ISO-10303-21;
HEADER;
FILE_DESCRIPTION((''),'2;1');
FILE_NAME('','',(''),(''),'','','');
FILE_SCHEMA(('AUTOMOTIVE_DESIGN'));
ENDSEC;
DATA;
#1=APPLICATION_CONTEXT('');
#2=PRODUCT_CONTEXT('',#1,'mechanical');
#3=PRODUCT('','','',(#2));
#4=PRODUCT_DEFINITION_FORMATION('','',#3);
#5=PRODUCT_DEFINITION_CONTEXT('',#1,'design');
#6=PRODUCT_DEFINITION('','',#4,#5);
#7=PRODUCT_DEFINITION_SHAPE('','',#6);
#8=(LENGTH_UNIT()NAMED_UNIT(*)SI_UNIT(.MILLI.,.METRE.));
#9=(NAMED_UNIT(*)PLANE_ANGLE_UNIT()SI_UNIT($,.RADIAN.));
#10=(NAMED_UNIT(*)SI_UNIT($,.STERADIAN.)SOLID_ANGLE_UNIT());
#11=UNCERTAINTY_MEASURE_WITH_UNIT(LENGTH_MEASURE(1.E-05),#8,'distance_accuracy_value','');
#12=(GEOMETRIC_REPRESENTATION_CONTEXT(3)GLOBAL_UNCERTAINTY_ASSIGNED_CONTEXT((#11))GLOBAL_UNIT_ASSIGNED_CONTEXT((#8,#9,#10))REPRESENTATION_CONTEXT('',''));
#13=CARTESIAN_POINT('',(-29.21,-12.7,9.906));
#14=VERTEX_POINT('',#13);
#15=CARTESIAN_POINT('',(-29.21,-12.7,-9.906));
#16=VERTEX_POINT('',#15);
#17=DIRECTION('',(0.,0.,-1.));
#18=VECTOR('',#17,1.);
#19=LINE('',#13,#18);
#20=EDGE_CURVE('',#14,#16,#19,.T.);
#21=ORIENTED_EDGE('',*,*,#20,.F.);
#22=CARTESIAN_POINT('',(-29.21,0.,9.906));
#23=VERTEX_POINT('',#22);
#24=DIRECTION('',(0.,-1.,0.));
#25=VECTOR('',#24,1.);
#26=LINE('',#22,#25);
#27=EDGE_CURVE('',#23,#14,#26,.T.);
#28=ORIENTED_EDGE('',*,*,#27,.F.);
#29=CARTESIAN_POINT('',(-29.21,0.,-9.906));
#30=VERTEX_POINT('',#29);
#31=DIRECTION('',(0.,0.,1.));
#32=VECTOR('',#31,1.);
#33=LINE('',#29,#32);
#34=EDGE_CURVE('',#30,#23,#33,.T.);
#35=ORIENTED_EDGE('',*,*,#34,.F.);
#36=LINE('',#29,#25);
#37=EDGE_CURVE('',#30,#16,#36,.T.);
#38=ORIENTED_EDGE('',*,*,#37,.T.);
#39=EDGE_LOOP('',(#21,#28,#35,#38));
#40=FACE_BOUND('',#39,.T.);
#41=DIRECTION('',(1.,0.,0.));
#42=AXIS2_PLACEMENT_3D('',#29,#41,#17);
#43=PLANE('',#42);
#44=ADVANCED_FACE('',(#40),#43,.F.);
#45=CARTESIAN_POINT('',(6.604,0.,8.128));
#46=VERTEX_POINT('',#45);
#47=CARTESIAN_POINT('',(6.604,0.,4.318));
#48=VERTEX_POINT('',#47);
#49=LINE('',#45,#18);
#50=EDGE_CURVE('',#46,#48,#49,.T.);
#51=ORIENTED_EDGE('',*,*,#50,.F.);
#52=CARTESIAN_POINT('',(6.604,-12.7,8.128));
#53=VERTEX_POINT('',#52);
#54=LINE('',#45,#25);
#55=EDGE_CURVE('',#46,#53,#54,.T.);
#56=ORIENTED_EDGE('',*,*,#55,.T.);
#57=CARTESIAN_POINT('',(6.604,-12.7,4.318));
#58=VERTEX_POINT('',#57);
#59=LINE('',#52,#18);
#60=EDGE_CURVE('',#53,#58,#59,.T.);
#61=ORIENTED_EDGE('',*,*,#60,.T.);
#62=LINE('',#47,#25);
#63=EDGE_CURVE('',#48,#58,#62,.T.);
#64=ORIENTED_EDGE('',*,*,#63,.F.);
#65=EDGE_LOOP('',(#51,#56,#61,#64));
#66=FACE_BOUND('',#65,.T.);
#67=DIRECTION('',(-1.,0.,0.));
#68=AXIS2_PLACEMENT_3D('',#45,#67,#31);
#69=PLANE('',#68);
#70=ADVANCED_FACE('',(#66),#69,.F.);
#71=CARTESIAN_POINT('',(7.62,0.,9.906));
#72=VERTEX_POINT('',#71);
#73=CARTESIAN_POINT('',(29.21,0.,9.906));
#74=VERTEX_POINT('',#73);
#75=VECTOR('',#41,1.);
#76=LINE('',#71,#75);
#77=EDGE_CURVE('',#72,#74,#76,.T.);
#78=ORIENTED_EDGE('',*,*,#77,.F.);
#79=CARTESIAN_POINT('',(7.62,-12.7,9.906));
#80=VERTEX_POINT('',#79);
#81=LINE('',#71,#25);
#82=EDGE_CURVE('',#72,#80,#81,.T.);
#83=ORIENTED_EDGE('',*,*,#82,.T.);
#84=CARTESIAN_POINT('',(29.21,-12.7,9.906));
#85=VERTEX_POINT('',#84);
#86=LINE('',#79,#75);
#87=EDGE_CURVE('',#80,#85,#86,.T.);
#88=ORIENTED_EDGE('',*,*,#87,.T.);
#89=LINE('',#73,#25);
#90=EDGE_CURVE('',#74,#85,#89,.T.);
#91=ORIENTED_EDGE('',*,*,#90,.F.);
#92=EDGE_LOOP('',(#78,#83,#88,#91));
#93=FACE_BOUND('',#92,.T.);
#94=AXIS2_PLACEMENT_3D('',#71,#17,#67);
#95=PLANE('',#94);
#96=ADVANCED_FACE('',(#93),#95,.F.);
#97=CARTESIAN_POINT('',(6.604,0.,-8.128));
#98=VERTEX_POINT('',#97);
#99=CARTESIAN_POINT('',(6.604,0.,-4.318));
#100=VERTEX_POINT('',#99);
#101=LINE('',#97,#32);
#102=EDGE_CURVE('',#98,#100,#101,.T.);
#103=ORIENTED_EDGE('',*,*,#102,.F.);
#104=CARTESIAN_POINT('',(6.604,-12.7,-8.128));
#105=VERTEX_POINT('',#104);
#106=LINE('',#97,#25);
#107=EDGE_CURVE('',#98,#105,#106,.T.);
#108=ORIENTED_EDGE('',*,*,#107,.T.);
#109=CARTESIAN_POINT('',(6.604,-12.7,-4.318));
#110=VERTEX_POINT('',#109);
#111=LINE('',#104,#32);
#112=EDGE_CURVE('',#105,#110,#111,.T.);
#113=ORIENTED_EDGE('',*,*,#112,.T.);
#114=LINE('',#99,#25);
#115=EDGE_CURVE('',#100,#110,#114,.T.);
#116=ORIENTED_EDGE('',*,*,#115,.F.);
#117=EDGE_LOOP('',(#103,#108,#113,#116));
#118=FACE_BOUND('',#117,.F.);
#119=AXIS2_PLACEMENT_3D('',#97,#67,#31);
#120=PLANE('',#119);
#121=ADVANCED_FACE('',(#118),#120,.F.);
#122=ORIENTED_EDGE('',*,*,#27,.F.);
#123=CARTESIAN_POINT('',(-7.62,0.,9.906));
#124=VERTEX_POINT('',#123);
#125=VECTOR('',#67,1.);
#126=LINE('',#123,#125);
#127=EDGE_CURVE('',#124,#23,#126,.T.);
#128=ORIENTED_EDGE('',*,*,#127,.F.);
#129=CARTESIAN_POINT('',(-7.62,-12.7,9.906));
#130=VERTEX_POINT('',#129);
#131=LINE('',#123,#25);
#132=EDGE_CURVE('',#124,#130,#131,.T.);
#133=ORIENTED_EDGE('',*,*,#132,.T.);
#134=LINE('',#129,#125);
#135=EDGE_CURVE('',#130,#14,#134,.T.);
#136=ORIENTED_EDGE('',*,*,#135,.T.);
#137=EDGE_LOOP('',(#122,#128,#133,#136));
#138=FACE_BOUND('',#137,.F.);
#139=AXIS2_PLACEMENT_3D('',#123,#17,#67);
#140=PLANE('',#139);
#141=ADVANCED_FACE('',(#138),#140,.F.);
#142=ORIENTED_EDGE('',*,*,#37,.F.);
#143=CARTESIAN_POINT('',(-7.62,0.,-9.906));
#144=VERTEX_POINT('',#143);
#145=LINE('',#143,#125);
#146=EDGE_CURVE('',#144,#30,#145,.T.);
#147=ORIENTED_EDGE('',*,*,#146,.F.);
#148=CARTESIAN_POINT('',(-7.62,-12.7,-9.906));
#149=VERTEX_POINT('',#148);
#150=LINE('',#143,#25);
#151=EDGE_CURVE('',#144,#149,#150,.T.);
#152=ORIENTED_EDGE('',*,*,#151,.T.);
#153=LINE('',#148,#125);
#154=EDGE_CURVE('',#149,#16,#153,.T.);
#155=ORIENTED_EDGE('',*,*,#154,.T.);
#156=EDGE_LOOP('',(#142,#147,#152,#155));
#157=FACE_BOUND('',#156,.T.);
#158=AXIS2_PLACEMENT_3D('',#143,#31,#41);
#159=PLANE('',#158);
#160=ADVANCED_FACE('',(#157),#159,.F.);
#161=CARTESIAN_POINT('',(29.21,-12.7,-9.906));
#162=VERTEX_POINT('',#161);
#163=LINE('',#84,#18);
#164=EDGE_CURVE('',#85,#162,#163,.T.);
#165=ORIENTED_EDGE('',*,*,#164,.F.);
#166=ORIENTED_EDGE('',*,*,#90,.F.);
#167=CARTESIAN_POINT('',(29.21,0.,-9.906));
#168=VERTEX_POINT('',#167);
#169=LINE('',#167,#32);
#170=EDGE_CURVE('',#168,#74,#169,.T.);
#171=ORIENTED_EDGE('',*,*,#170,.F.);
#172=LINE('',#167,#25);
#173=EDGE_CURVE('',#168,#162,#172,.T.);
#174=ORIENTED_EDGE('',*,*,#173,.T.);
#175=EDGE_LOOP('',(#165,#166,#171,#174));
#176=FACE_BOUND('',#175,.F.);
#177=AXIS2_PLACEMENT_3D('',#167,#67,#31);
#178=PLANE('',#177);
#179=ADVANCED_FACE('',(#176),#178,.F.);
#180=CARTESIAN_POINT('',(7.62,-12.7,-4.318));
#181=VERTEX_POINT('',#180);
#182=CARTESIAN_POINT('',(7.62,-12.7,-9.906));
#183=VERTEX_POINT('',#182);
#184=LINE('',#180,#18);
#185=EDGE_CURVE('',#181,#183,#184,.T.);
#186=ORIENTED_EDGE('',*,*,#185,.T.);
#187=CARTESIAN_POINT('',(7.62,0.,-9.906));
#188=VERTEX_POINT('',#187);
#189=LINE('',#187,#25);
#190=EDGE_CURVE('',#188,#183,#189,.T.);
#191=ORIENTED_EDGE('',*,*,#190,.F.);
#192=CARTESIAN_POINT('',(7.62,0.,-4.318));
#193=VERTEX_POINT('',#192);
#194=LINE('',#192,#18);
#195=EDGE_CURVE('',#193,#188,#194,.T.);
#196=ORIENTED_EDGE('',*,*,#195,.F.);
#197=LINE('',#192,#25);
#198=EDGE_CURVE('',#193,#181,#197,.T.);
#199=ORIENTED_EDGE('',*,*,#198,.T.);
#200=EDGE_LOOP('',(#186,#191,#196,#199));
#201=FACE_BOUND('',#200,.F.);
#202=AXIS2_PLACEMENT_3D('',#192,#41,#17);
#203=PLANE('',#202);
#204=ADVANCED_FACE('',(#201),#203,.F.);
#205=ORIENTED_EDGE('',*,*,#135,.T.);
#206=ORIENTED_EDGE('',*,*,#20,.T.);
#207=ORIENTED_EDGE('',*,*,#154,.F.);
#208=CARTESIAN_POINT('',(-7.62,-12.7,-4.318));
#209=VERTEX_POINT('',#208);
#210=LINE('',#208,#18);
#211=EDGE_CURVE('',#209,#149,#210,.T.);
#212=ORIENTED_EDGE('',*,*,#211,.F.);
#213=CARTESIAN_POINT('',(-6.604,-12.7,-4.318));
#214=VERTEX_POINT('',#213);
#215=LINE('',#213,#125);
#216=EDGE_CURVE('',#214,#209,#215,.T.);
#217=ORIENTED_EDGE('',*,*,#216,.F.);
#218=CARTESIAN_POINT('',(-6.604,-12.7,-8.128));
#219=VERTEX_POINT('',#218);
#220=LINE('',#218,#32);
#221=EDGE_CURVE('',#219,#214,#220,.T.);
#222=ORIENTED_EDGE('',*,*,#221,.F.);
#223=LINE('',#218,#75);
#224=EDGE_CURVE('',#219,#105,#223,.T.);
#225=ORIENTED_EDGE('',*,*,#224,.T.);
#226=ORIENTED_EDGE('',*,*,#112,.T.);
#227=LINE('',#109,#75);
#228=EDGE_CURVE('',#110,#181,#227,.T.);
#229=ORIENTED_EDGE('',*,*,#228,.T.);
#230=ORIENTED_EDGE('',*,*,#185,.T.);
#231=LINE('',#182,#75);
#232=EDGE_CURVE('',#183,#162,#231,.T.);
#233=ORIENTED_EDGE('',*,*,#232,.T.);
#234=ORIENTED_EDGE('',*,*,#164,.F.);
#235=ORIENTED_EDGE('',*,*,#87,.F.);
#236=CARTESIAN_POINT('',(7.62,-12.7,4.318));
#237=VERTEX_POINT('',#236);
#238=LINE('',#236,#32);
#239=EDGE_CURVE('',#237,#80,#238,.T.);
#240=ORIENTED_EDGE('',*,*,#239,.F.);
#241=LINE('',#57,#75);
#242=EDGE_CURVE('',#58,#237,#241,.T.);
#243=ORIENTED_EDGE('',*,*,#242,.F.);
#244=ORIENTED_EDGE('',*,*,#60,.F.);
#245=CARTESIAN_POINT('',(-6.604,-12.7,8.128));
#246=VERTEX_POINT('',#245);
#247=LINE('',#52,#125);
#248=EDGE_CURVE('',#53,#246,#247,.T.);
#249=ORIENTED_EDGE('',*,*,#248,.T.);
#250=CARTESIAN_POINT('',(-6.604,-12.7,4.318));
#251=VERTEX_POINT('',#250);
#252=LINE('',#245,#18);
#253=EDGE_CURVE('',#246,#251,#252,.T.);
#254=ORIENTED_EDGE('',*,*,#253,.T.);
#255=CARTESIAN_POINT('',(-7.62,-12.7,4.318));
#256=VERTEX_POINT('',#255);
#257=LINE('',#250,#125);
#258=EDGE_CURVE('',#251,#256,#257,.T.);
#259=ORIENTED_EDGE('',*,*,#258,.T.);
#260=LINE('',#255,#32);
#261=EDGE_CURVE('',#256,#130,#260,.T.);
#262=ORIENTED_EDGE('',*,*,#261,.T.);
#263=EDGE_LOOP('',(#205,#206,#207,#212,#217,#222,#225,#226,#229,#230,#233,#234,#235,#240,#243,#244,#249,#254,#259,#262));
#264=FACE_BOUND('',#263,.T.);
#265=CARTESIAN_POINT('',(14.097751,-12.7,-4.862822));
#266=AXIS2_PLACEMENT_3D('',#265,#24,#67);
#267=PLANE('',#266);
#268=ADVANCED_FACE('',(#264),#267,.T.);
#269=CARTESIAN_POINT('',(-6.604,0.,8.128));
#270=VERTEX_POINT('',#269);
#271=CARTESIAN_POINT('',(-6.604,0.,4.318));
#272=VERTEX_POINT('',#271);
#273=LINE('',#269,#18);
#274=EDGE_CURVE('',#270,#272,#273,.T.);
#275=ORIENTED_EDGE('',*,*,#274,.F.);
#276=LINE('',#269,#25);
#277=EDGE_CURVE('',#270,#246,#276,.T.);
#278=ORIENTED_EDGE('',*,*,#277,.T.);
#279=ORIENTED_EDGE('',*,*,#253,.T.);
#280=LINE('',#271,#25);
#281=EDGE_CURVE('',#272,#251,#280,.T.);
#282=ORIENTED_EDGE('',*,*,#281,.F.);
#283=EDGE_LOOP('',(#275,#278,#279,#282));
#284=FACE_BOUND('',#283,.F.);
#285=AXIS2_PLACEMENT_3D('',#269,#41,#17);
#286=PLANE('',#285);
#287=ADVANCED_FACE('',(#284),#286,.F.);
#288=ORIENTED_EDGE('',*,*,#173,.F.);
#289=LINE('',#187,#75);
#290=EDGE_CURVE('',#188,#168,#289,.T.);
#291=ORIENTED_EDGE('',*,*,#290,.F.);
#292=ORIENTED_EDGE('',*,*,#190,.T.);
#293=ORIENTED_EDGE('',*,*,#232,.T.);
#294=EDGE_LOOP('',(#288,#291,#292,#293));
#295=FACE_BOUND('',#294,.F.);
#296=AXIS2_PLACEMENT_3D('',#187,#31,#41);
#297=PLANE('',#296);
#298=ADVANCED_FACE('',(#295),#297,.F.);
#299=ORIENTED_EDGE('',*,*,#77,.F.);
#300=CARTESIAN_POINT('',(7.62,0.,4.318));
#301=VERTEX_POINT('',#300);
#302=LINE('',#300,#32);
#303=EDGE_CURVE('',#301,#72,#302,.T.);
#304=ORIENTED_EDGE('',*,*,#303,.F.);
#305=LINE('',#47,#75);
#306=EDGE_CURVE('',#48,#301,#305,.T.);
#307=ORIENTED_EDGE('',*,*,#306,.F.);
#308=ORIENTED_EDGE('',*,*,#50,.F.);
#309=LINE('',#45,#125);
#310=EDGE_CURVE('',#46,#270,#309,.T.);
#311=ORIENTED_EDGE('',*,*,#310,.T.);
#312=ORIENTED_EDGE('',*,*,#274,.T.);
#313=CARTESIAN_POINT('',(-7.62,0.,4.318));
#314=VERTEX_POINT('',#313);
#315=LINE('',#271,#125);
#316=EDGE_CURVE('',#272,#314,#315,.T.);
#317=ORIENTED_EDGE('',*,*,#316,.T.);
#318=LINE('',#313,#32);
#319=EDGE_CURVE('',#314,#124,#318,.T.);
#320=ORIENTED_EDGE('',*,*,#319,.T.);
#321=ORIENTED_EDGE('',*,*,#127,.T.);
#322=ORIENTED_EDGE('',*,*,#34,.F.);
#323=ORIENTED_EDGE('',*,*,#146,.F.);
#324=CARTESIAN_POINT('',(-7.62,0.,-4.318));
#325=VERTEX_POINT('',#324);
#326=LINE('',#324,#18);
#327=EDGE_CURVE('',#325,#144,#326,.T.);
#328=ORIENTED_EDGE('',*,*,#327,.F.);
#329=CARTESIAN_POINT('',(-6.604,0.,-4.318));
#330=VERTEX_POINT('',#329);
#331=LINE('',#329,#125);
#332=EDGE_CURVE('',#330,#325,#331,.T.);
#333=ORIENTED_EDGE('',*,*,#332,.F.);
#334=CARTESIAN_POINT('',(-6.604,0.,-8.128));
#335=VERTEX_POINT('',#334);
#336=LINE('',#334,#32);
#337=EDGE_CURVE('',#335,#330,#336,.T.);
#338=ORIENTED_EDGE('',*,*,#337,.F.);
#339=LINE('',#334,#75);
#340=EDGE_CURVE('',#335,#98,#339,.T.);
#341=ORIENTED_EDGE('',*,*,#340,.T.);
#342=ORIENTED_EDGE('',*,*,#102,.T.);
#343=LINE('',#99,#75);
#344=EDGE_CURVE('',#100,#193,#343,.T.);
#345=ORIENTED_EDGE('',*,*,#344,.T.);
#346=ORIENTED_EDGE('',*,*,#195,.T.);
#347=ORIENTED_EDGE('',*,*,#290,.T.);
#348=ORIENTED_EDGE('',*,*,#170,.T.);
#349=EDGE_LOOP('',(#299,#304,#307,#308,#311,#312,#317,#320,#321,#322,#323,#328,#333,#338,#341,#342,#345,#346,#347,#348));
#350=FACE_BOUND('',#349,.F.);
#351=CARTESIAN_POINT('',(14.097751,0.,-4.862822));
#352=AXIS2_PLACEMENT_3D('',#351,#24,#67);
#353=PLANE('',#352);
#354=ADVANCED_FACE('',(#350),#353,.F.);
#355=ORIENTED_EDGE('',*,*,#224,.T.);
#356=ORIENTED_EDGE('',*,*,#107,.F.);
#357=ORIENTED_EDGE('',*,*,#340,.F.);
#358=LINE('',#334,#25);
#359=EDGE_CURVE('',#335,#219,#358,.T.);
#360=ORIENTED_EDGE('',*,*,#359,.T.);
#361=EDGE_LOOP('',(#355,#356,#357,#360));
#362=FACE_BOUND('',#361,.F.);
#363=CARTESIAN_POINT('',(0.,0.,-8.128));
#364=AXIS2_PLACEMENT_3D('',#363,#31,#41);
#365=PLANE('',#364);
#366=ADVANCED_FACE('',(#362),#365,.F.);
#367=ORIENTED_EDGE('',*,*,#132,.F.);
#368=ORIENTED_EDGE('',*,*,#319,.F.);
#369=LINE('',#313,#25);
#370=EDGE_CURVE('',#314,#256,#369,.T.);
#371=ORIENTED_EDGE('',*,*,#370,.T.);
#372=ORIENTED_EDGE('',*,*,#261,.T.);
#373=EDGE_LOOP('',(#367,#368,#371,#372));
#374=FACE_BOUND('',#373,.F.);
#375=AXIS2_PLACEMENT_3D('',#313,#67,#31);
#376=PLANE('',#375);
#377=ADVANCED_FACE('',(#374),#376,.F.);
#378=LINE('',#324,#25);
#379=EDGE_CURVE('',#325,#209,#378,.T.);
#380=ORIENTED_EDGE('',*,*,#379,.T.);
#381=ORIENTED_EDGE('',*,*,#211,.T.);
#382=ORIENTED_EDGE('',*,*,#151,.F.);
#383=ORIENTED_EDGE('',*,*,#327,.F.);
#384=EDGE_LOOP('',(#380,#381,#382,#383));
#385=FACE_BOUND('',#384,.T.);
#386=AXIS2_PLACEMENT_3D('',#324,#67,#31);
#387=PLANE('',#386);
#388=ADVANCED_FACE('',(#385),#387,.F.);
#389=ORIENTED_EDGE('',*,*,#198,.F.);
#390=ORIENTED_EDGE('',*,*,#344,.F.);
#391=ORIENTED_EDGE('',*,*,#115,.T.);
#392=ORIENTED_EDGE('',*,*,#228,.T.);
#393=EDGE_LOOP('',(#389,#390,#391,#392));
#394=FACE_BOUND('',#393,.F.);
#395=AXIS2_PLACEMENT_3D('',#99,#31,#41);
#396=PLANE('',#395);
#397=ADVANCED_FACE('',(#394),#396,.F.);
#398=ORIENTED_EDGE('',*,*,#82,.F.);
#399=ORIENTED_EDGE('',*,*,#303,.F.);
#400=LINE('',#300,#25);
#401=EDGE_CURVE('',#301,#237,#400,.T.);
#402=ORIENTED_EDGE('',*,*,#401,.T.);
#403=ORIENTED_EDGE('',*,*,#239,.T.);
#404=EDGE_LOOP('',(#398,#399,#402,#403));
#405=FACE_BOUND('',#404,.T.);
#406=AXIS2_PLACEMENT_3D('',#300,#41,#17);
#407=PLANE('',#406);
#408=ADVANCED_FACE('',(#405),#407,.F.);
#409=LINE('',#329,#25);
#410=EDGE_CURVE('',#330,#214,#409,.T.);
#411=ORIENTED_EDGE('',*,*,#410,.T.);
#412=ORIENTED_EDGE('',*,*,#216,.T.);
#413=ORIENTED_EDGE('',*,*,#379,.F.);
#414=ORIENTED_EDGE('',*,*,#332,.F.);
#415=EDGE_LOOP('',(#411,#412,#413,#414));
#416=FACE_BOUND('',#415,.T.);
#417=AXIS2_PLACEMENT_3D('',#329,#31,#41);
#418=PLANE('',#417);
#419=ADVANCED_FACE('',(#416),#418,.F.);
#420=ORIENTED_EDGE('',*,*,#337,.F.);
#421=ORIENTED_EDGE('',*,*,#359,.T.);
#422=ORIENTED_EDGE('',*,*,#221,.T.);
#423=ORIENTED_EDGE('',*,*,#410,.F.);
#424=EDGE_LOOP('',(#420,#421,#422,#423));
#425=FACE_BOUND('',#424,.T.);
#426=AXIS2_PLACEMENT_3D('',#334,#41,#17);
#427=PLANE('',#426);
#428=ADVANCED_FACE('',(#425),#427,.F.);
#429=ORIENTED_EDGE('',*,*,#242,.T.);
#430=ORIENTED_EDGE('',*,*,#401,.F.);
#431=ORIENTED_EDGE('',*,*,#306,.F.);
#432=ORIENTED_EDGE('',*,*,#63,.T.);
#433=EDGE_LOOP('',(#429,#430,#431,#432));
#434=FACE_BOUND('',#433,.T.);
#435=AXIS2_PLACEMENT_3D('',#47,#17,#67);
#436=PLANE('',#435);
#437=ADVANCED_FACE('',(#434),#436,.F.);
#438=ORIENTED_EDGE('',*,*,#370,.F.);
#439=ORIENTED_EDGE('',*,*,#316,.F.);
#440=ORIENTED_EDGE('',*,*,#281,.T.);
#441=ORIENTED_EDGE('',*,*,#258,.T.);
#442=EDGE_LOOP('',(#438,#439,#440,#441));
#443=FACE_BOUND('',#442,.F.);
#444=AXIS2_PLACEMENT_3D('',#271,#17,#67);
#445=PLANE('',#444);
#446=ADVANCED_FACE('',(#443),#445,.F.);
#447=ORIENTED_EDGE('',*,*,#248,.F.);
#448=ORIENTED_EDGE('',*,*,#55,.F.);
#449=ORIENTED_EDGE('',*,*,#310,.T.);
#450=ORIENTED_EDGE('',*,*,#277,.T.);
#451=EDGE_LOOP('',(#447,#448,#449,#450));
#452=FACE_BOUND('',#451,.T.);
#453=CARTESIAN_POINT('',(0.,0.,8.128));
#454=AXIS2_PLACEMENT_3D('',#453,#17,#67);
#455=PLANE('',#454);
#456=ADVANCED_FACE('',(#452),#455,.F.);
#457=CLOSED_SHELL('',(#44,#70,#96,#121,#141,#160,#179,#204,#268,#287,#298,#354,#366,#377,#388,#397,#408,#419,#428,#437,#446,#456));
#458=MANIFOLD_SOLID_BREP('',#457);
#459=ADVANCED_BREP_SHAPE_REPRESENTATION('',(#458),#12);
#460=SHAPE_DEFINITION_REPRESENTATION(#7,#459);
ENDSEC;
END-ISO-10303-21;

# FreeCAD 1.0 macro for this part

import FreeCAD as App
import Part
import Sketcher
Q = App.Units.Quantity

doc = App.newDocument("Part")
body = doc.addObject("PartDesign::Body", "Body")

# Sketch on XZ plane
sketch1 = body.newObject("Sketcher::SketchObject", "Sketch")
sketch1.AttachmentSupport = (doc.getObject("XZ_Plane"), [""])
sketch1.MapMode = "FlatFace"
sketch1.addGeometry([
    Part.LineSegment(App.Vector(-29.2, 0, 0), App.Vector(0, 0, 0)),  # 0
    Part.LineSegment(App.Vector(0, 0, 0), App.Vector(0, 8.1, 0)),  # 1
    Part.LineSegment(App.Vector(0, 8.1, 0), App.Vector(-6.6, 8.1, 0)),  # 2
    Part.LineSegment(App.Vector(-6.6, 8.1, 0), App.Vector(-6.6, 4.3, 0)),  # 3
    Part.LineSegment(App.Vector(-6.6, 4.3, 0), App.Vector(-7.6, 4.3, 0)),  # 4
    Part.LineSegment(App.Vector(-7.6, 4.3, 0), App.Vector(-7.6, 9.9, 0)),  # 5
    Part.LineSegment(App.Vector(-7.6, 9.9, 0), App.Vector(-29.2, 9.9, 0)),  # 6
    Part.LineSegment(App.Vector(-29.2, 9.9, 0), App.Vector(-29.2, 0, 0)),  # 7
], False)
sketch1.addConstraint([
    Sketcher.Constraint("Coincident", 0, 2, 1, 1),
    Sketcher.Constraint("Coincident", 1, 2, 2, 1),
    Sketcher.Constraint("Coincident", 2, 2, 3, 1),
    Sketcher.Constraint("Coincident", 3, 2, 4, 1),
    Sketcher.Constraint("Coincident", 4, 2, 5, 1),
    Sketcher.Constraint("Coincident", 5, 2, 6, 1),
    Sketcher.Constraint("Coincident", 6, 2, 7, 1),
    Sketcher.Constraint("Coincident", 7, 2, 0, 1),
    Sketcher.Constraint("Horizontal", 0),
    Sketcher.Constraint("Vertical", 1),
    Sketcher.Constraint("Horizontal", 2),
    Sketcher.Constraint("Vertical", 3),
    Sketcher.Constraint("Horizontal", 4),
    Sketcher.Constraint("Vertical", 5),
    Sketcher.Constraint("Horizontal", 6),
    Sketcher.Constraint("Vertical", 7),
    Sketcher.Constraint("Coincident", 0, 2, -1, 1),
    Sketcher.Constraint("DistanceX", 0, 1, 0, 2, Q("1.15 in")),
    Sketcher.Constraint("DistanceX", 2, 2, 2, 1, Q("0.26 in")),
    Sketcher.Constraint("DistanceX", 4, 2, 4, 1, Q("0.04 in")),
    Sketcher.Constraint("DistanceY", 1, 1, 1, 2, Q("0.32 in")),
    Sketcher.Constraint("DistanceY", 3, 2, 3, 1, Q("0.15 in")),
    Sketcher.Constraint("DistanceY", 5, 1, 5, 2, Q("0.22 in")),
])
pad1 = body.newObject("PartDesign::Pad", "Pad")
pad1.Profile = sketch1
pad1.Length = Q("0.5 in")
body2 = doc.addObject("PartDesign::Body", "Body001")
doc.recompute()

body2.BaseFeature = body
doc.recompute()

mirroring = doc.addObject("Part::Mirroring", "Mirroring")
mirroring.Source = body
mirroring.Base = App.Vector(-14.605, -6.35, 0)
mirroring.Normal = App.Vector(0, 0, -1)
body3 = doc.addObject("PartDesign::Body", "Body002")
body3.BaseFeature = mirroring
boolean = body2.newObject("PartDesign::Boolean", "Boolean")
boolean.Type = "Fuse"
boolean.addObjects([body3])
doc.recompute()
body4 = doc.addObject("PartDesign::Body", "Body003")
doc.recompute()

body4.BaseFeature = body2
doc.recompute()

mirroring2 = doc.addObject("Part::Mirroring", "Mirroring001")
mirroring2.Source = body2
mirroring2.Base = App.Vector(0, -6.35, 0)
mirroring2.Normal = App.Vector(1, 0, 0)
body5 = doc.addObject("PartDesign::Body", "Body004")
body5.BaseFeature = mirroring2
boolean2 = body4.newObject("PartDesign::Boolean", "Boolean001")
boolean2.Type = "Fuse"
boolean2.addObjects([body5])
doc.recompute()
mirroring.Visibility = False
mirroring2.Visibility = False

doc.recompute()
